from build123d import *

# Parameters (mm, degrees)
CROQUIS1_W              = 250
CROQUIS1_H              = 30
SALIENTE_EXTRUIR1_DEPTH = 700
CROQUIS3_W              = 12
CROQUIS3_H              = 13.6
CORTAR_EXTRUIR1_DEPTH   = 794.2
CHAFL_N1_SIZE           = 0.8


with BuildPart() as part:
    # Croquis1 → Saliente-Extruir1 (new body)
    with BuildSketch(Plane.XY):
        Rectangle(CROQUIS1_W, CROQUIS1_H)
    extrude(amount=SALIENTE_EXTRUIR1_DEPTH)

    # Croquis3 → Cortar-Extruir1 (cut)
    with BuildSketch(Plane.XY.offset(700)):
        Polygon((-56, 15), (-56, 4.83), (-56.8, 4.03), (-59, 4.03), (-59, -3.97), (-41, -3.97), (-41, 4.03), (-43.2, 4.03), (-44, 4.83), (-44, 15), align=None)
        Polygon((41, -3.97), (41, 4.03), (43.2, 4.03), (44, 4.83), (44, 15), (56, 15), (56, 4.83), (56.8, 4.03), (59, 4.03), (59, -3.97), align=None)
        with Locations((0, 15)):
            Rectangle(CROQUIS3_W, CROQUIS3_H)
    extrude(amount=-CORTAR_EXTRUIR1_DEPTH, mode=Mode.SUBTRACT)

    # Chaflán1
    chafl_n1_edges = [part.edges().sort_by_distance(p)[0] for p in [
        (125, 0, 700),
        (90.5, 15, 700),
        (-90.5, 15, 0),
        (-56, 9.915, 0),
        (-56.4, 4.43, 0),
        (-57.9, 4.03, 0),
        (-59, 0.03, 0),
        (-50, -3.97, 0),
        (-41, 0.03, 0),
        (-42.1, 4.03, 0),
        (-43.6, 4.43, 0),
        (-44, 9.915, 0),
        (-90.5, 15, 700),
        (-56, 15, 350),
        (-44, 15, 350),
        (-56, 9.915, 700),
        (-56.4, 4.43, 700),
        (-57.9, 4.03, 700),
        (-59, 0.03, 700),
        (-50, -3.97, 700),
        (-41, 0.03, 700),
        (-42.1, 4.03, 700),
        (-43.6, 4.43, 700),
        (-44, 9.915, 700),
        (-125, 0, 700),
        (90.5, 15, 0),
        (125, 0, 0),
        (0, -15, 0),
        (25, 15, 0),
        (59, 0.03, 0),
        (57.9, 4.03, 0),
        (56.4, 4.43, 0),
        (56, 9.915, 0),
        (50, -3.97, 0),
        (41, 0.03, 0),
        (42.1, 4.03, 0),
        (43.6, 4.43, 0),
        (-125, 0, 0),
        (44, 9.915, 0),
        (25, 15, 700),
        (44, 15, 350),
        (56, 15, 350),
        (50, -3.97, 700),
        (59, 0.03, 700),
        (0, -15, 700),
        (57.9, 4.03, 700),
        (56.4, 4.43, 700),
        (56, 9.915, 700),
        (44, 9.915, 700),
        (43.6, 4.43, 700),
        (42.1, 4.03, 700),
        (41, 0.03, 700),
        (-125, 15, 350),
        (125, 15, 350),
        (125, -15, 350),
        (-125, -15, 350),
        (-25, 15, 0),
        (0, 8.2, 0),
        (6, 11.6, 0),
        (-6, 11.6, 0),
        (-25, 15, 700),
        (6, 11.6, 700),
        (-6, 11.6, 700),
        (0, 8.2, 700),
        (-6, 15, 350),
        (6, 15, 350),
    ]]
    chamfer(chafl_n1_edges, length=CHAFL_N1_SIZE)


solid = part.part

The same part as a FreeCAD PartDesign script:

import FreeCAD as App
import Part
import Sketcher


def edges_at(feature, points):
    """Names of the edges that pass closest to the given points."""
    edges = feature.Shape.Edges
    near = lambda p: min(range(len(edges)), key=lambda i: edges[i].distToShape(Part.Vertex(*p))[0])
    return sorted({f"Edge{near(p) + 1}" for p in points})

doc = App.newDocument("Part")
params = doc.addObject("Spreadsheet::Sheet", "Params")
for row, (alias, value) in enumerate([
    ("sketch1_width", "250 mm"),
    ("sketch1_height", "30 mm"),
    ("pad1_length", "700 mm"),
    ("sketch2_width", "18 mm"),
    ("sketch2_width2", "12 mm"),
    ("sketch2_height", "8 mm"),
    ("sketch2_width3", "2.2 mm"),
    ("sketch2_height2", "13.6 mm"),
    ("pocket1_length", "794.2 mm"),
    ("chamfer_size", "0.8 mm"),
], start=1):
    params.set(f"A{row}", alias)
    params.set(f"B{row}", "=" + value)
    params.setAlias(f"B{row}", alias)

body = doc.addObject("PartDesign::Body", "Body")

# Sketch on XY plane
sketch1 = body.newObject("Sketcher::SketchObject", "Sketch")
sketch1.AttachmentSupport = (doc.getObject("XY_Plane"), [""])
sketch1.MapMode = "FlatFace"
sketch1.addGeometry(Part.LineSegment(App.Vector(-125, 15, 0), App.Vector(-125, -15, 0)), False)
sketch1.addGeometry(Part.LineSegment(App.Vector(-125, -15, 0), App.Vector(125, -15, 0)), False)
sketch1.addGeometry(Part.LineSegment(App.Vector(125, -15, 0), App.Vector(125, 15, 0)), False)
sketch1.addGeometry(Part.LineSegment(App.Vector(125, 15, 0), App.Vector(-125, 15, 0)), False)
sketch1.addConstraint(Sketcher.Constraint("Coincident", 0, 2, 1, 1))
sketch1.addConstraint(Sketcher.Constraint("Coincident", 1, 2, 2, 1))
sketch1.addConstraint(Sketcher.Constraint("Coincident", 2, 2, 3, 1))
sketch1.addConstraint(Sketcher.Constraint("Coincident", 3, 2, 0, 1))
sketch1.addConstraint(Sketcher.Constraint("Vertical", 0))
sketch1.addConstraint(Sketcher.Constraint("Horizontal", 1))
sketch1.addConstraint(Sketcher.Constraint("Vertical", 2))
sketch1.addConstraint(Sketcher.Constraint("Horizontal", 3))
sketch1.addConstraint(Sketcher.Constraint("Symmetric", 0, 2, 2, 2, -1, 1))
sketch1.addConstraint(Sketcher.Constraint("DistanceX", 1, 1, 1, 2, 250.0))
sketch1.addConstraint(Sketcher.Constraint("DistanceY", 0, 2, 0, 1, 30.0))
sketch1.setExpression("Constraints[9]", "Params.sketch1_width")
sketch1.setExpression("Constraints[10]", "Params.sketch1_height")
pad1 = body.newObject("PartDesign::Pad", "Pad")
pad1.Profile = sketch1
pad1.setExpression("Length", "Params.pad1_length")

# Sketch on XY plane
sketch2 = body.newObject("Sketcher::SketchObject", "Sketch001")
sketch2.AttachmentSupport = (doc.getObject("XY_Plane"), [""])
sketch2.MapMode = "FlatFace"
sketch2.AttachmentOffset = App.Placement(App.Vector(0, 0, 700), App.Rotation())
sketch2.addGeometry(Part.LineSegment(App.Vector(-56, 15, 0), App.Vector(-56, 4.8, 0)), False)
sketch2.addGeometry(Part.LineSegment(App.Vector(-56, 4.8, 0), App.Vector(-56.8, 4, 0)), False)
sketch2.addGeometry(Part.LineSegment(App.Vector(-56.8, 4, 0), App.Vector(-59, 4, 0)), False)
sketch2.addGeometry(Part.LineSegment(App.Vector(-59, 4, 0), App.Vector(-59, -4, 0)), False)
sketch2.addGeometry(Part.LineSegment(App.Vector(-59, -4, 0), App.Vector(-41, -4, 0)), False)
sketch2.addGeometry(Part.LineSegment(App.Vector(-41, -4, 0), App.Vector(-41, 4, 0)), False)
sketch2.addGeometry(Part.LineSegment(App.Vector(-41, 4, 0), App.Vector(-43.2, 4, 0)), False)
sketch2.addGeometry(Part.LineSegment(App.Vector(-43.2, 4, 0), App.Vector(-44, 4.8, 0)), False)
sketch2.addGeometry(Part.LineSegment(App.Vector(-44, 4.8, 0), App.Vector(-44, 15, 0)), False)
sketch2.addGeometry(Part.LineSegment(App.Vector(-44, 15, 0), App.Vector(-56, 15, 0)), False)
sketch2.addGeometry(Part.LineSegment(App.Vector(41, 4, 0), App.Vector(41, -4, 0)), False)
sketch2.addGeometry(Part.LineSegment(App.Vector(41, -4, 0), App.Vector(59, -4, 0)), False)
sketch2.addGeometry(Part.LineSegment(App.Vector(59, -4, 0), App.Vector(59, 4, 0)), False)
sketch2.addGeometry(Part.LineSegment(App.Vector(59, 4, 0), App.Vector(56.8, 4, 0)), False)
sketch2.addGeometry(Part.LineSegment(App.Vector(56.8, 4, 0), App.Vector(56, 4.8, 0)), False)
sketch2.addGeometry(Part.LineSegment(App.Vector(56, 4.8, 0), App.Vector(56, 15, 0)), False)
sketch2.addGeometry(Part.LineSegment(App.Vector(56, 15, 0), App.Vector(44, 15, 0)), False)
sketch2.addGeometry(Part.LineSegment(App.Vector(44, 15, 0), App.Vector(44, 4.8, 0)), False)
sketch2.addGeometry(Part.LineSegment(App.Vector(44, 4.8, 0), App.Vector(43.2, 4, 0)), False)
sketch2.addGeometry(Part.LineSegment(App.Vector(43.2, 4, 0), App.Vector(41, 4, 0)), False)
sketch2.addGeometry(Part.LineSegment(App.Vector(-6, 21.8, 0), App.Vector(-6, 8.2, 0)), False)
sketch2.addGeometry(Part.LineSegment(App.Vector(-6, 8.2, 0), App.Vector(6, 8.2, 0)), False)
sketch2.addGeometry(Part.LineSegment(App.Vector(6, 8.2, 0), App.Vector(6, 21.8, 0)), False)
sketch2.addGeometry(Part.LineSegment(App.Vector(6, 21.8, 0), App.Vector(-6, 21.8, 0)), False)
sketch2.addConstraint(Sketcher.Constraint("Coincident", 0, 2, 1, 1))
sketch2.addConstraint(Sketcher.Constraint("Coincident", 1, 2, 2, 1))
sketch2.addConstraint(Sketcher.Constraint("Coincident", 2, 2, 3, 1))
sketch2.addConstraint(Sketcher.Constraint("Coincident", 3, 2, 4, 1))
sketch2.addConstraint(Sketcher.Constraint("Coincident", 4, 2, 5, 1))
sketch2.addConstraint(Sketcher.Constraint("Coincident", 5, 2, 6, 1))
sketch2.addConstraint(Sketcher.Constraint("Coincident", 6, 2, 7, 1))
sketch2.addConstraint(Sketcher.Constraint("Coincident", 7, 2, 8, 1))
sketch2.addConstraint(Sketcher.Constraint("Coincident", 8, 2, 9, 1))
sketch2.addConstraint(Sketcher.Constraint("Coincident", 9, 2, 0, 1))
sketch2.addConstraint(Sketcher.Constraint("Coincident", 10, 2, 11, 1))
sketch2.addConstraint(Sketcher.Constraint("Coincident", 11, 2, 12, 1))
sketch2.addConstraint(Sketcher.Constraint("Coincident", 12, 2, 13, 1))
sketch2.addConstraint(Sketcher.Constraint("Coincident", 13, 2, 14, 1))
sketch2.addConstraint(Sketcher.Constraint("Coincident", 14, 2, 15, 1))
sketch2.addConstraint(Sketcher.Constraint("Coincident", 15, 2, 16, 1))
sketch2.addConstraint(Sketcher.Constraint("Coincident", 16, 2, 17, 1))
sketch2.addConstraint(Sketcher.Constraint("Coincident", 17, 2, 18, 1))
sketch2.addConstraint(Sketcher.Constraint("Coincident", 18, 2, 19, 1))
sketch2.addConstraint(Sketcher.Constraint("Coincident", 19, 2, 10, 1))
sketch2.addConstraint(Sketcher.Constraint("Coincident", 20, 2, 21, 1))
sketch2.addConstraint(Sketcher.Constraint("Coincident", 21, 2, 22, 1))
sketch2.addConstraint(Sketcher.Constraint("Coincident", 22, 2, 23, 1))
sketch2.addConstraint(Sketcher.Constraint("Coincident", 23, 2, 20, 1))
sketch2.addConstraint(Sketcher.Constraint("Vertical", 0))
sketch2.addConstraint(Sketcher.Constraint("Horizontal", 2))
sketch2.addConstraint(Sketcher.Constraint("Vertical", 3))
sketch2.addConstraint(Sketcher.Constraint("Horizontal", 4))
sketch2.addConstraint(Sketcher.Constraint("Vertical", 5))
sketch2.addConstraint(Sketcher.Constraint("Horizontal", 6))
sketch2.addConstraint(Sketcher.Constraint("Vertical", 8))
sketch2.addConstraint(Sketcher.Constraint("Horizontal", 9))
sketch2.addConstraint(Sketcher.Constraint("Vertical", 10))
sketch2.addConstraint(Sketcher.Constraint("Horizontal", 11))
sketch2.addConstraint(Sketcher.Constraint("Vertical", 12))
sketch2.addConstraint(Sketcher.Constraint("Horizontal", 13))
sketch2.addConstraint(Sketcher.Constraint("Vertical", 15))
sketch2.addConstraint(Sketcher.Constraint("Horizontal", 16))
sketch2.addConstraint(Sketcher.Constraint("Vertical", 17))
sketch2.addConstraint(Sketcher.Constraint("Horizontal", 19))
sketch2.addConstraint(Sketcher.Constraint("Vertical", 20))
sketch2.addConstraint(Sketcher.Constraint("Horizontal", 21))
sketch2.addConstraint(Sketcher.Constraint("Vertical", 22))
sketch2.addConstraint(Sketcher.Constraint("Horizontal", 23))
sketch2.addConstraint(Sketcher.Constraint("Symmetric", 4, 2, 10, 2, -2))
sketch2.addConstraint(Sketcher.Constraint("Symmetric", 2, 2, 12, 2, -2))
sketch2.addConstraint(Sketcher.Constraint("Symmetric", 0, 2, 14, 2, -2))
sketch2.addConstraint(Sketcher.Constraint("Symmetric", 8, 2, 16, 2, -2))
sketch2.addConstraint(Sketcher.Constraint("Symmetric", 6, 2, 18, 2, -2))
sketch2.addConstraint(Sketcher.Constraint("Perpendicular", 1, 7))
sketch2.addConstraint(Sketcher.Constraint("Parallel", 7, 14))
sketch2.addConstraint(Sketcher.Constraint("Perpendicular", 14, 18))
sketch2.addConstraint(Sketcher.Constraint("Horizontal", 2, 2, 5, 2))
sketch2.addConstraint(Sketcher.Constraint("Horizontal", 0, 2, 7, 2))
sketch2.addConstraint(Sketcher.Constraint("Horizontal", 14, 2, 17, 2))
sketch2.addConstraint(Sketcher.Constraint("Equal", 2, 6))
sketch2.addConstraint(Sketcher.Constraint("Equal", 16, 21))
sketch2.addConstraint(Sketcher.Constraint("DistanceX", 4, 1, 4, 2, 18.0))
sketch2.addConstraint(Sketcher.Constraint("DistanceX", 9, 2, 9, 1, 12.0))
sketch2.addConstraint(Sketcher.Constraint("DistanceY", 3, 2, 3, 1, 8.0))
sketch2.addConstraint(Sketcher.Constraint("DistanceX", 2, 2, 2, 1, 2.2))
sketch2.addConstraint(Sketcher.Constraint("DistanceY", 20, 2, 20, 1, 13.6))
sketch2.addConstraint(Sketcher.Constraint("DistanceX", 0, 2, -1, 1, 56.0))
sketch2.addConstraint(Sketcher.Constraint("DistanceY", -1, 1, 8, 2, 15.0))
sketch2.addConstraint(Sketcher.Constraint("DistanceX", 20, 2, -1, 1, 6.0))
sketch2.addConstraint(Sketcher.Constraint("DistanceY", 0, 2, 0, 1, 10.17))
sketch2.addConstraint(Sketcher.Constraint("DistanceY", -1, 1, 20, 2, 8.2))
sketch2.setExpression("Constraints[57]", "Params.sketch2_width")
sketch2.setExpression("Constraints[58]", "Params.sketch2_width2")
sketch2.setExpression("Constraints[59]", "Params.sketch2_height")
sketch2.setExpression("Constraints[60]", "Params.sketch2_width3")
sketch2.setExpression("Constraints[61]", "Params.sketch2_height2")
pocket1 = body.newObject("PartDesign::Pocket", "Pocket")
pocket1.Profile = sketch2
pocket1.setExpression("Length", "Params.pocket1_length")
doc.recompute()

chamfer = body.newObject("PartDesign::Chamfer", "Chamfer")
chamfer.Base = (pocket1, edges_at(pocket1, [
    (125, 0, 700),
    (90.5, 15, 700),
    (-90.5, 15, 0),
    (-56, 9.915, 0),
    (-56.4, 4.43, 0),
    (-57.9, 4.03, 0),
    (-59, 0.03, 0),
    (-50, -3.97, 0),
    (-41, 0.03, 0),
    (-42.1, 4.03, 0),
    (-43.6, 4.43, 0),
    (-44, 9.915, 0),
    (-90.5, 15, 700),
    (-56, 15, 350),
    (-44, 15, 350),
    (-56, 9.915, 700),
    (-56.4, 4.43, 700),
    (-57.9, 4.03, 700),
    (-59, 0.03, 700),
    (-50, -3.97, 700),
    (-41, 0.03, 700),
    (-42.1, 4.03, 700),
    (-43.6, 4.43, 700),
    (-44, 9.915, 700),
    (-125, 0, 700),
    (90.5, 15, 0),
    (125, 0, 0),
    (0, -15, 0),
    (25, 15, 0),
    (59, 0.03, 0),
    (57.9, 4.03, 0),
    (56.4, 4.43, 0),
    (56, 9.915, 0),
    (50, -3.97, 0),
    (41, 0.03, 0),
    (42.1, 4.03, 0),
    (43.6, 4.43, 0),
    (-125, 0, 0),
    (44, 9.915, 0),
    (25, 15, 700),
    (44, 15, 350),
    (56, 15, 350),
    (50, -3.97, 700),
    (59, 0.03, 700),
    (0, -15, 700),
    (57.9, 4.03, 700),
    (56.4, 4.43, 700),
    (56, 9.915, 700),
    (44, 9.915, 700),
    (43.6, 4.43, 700),
    (42.1, 4.03, 700),
    (41, 0.03, 700),
    (-125, 15, 350),
    (125, 15, 350),
    (125, -15, 350),
    (-125, -15, 350),
    (-25, 15, 0),
    (0, 8.2, 0),
    (6, 11.6, 0),
    (-6, 11.6, 0),
    (-25, 15, 700),
    (6, 11.6, 700),
    (-6, 11.6, 700),
    (0, 8.2, 700),
    (-6, 15, 350),
    (6, 15, 350),
]))
chamfer.setExpression("Size", "Params.chamfer_size")

doc.recompute()
